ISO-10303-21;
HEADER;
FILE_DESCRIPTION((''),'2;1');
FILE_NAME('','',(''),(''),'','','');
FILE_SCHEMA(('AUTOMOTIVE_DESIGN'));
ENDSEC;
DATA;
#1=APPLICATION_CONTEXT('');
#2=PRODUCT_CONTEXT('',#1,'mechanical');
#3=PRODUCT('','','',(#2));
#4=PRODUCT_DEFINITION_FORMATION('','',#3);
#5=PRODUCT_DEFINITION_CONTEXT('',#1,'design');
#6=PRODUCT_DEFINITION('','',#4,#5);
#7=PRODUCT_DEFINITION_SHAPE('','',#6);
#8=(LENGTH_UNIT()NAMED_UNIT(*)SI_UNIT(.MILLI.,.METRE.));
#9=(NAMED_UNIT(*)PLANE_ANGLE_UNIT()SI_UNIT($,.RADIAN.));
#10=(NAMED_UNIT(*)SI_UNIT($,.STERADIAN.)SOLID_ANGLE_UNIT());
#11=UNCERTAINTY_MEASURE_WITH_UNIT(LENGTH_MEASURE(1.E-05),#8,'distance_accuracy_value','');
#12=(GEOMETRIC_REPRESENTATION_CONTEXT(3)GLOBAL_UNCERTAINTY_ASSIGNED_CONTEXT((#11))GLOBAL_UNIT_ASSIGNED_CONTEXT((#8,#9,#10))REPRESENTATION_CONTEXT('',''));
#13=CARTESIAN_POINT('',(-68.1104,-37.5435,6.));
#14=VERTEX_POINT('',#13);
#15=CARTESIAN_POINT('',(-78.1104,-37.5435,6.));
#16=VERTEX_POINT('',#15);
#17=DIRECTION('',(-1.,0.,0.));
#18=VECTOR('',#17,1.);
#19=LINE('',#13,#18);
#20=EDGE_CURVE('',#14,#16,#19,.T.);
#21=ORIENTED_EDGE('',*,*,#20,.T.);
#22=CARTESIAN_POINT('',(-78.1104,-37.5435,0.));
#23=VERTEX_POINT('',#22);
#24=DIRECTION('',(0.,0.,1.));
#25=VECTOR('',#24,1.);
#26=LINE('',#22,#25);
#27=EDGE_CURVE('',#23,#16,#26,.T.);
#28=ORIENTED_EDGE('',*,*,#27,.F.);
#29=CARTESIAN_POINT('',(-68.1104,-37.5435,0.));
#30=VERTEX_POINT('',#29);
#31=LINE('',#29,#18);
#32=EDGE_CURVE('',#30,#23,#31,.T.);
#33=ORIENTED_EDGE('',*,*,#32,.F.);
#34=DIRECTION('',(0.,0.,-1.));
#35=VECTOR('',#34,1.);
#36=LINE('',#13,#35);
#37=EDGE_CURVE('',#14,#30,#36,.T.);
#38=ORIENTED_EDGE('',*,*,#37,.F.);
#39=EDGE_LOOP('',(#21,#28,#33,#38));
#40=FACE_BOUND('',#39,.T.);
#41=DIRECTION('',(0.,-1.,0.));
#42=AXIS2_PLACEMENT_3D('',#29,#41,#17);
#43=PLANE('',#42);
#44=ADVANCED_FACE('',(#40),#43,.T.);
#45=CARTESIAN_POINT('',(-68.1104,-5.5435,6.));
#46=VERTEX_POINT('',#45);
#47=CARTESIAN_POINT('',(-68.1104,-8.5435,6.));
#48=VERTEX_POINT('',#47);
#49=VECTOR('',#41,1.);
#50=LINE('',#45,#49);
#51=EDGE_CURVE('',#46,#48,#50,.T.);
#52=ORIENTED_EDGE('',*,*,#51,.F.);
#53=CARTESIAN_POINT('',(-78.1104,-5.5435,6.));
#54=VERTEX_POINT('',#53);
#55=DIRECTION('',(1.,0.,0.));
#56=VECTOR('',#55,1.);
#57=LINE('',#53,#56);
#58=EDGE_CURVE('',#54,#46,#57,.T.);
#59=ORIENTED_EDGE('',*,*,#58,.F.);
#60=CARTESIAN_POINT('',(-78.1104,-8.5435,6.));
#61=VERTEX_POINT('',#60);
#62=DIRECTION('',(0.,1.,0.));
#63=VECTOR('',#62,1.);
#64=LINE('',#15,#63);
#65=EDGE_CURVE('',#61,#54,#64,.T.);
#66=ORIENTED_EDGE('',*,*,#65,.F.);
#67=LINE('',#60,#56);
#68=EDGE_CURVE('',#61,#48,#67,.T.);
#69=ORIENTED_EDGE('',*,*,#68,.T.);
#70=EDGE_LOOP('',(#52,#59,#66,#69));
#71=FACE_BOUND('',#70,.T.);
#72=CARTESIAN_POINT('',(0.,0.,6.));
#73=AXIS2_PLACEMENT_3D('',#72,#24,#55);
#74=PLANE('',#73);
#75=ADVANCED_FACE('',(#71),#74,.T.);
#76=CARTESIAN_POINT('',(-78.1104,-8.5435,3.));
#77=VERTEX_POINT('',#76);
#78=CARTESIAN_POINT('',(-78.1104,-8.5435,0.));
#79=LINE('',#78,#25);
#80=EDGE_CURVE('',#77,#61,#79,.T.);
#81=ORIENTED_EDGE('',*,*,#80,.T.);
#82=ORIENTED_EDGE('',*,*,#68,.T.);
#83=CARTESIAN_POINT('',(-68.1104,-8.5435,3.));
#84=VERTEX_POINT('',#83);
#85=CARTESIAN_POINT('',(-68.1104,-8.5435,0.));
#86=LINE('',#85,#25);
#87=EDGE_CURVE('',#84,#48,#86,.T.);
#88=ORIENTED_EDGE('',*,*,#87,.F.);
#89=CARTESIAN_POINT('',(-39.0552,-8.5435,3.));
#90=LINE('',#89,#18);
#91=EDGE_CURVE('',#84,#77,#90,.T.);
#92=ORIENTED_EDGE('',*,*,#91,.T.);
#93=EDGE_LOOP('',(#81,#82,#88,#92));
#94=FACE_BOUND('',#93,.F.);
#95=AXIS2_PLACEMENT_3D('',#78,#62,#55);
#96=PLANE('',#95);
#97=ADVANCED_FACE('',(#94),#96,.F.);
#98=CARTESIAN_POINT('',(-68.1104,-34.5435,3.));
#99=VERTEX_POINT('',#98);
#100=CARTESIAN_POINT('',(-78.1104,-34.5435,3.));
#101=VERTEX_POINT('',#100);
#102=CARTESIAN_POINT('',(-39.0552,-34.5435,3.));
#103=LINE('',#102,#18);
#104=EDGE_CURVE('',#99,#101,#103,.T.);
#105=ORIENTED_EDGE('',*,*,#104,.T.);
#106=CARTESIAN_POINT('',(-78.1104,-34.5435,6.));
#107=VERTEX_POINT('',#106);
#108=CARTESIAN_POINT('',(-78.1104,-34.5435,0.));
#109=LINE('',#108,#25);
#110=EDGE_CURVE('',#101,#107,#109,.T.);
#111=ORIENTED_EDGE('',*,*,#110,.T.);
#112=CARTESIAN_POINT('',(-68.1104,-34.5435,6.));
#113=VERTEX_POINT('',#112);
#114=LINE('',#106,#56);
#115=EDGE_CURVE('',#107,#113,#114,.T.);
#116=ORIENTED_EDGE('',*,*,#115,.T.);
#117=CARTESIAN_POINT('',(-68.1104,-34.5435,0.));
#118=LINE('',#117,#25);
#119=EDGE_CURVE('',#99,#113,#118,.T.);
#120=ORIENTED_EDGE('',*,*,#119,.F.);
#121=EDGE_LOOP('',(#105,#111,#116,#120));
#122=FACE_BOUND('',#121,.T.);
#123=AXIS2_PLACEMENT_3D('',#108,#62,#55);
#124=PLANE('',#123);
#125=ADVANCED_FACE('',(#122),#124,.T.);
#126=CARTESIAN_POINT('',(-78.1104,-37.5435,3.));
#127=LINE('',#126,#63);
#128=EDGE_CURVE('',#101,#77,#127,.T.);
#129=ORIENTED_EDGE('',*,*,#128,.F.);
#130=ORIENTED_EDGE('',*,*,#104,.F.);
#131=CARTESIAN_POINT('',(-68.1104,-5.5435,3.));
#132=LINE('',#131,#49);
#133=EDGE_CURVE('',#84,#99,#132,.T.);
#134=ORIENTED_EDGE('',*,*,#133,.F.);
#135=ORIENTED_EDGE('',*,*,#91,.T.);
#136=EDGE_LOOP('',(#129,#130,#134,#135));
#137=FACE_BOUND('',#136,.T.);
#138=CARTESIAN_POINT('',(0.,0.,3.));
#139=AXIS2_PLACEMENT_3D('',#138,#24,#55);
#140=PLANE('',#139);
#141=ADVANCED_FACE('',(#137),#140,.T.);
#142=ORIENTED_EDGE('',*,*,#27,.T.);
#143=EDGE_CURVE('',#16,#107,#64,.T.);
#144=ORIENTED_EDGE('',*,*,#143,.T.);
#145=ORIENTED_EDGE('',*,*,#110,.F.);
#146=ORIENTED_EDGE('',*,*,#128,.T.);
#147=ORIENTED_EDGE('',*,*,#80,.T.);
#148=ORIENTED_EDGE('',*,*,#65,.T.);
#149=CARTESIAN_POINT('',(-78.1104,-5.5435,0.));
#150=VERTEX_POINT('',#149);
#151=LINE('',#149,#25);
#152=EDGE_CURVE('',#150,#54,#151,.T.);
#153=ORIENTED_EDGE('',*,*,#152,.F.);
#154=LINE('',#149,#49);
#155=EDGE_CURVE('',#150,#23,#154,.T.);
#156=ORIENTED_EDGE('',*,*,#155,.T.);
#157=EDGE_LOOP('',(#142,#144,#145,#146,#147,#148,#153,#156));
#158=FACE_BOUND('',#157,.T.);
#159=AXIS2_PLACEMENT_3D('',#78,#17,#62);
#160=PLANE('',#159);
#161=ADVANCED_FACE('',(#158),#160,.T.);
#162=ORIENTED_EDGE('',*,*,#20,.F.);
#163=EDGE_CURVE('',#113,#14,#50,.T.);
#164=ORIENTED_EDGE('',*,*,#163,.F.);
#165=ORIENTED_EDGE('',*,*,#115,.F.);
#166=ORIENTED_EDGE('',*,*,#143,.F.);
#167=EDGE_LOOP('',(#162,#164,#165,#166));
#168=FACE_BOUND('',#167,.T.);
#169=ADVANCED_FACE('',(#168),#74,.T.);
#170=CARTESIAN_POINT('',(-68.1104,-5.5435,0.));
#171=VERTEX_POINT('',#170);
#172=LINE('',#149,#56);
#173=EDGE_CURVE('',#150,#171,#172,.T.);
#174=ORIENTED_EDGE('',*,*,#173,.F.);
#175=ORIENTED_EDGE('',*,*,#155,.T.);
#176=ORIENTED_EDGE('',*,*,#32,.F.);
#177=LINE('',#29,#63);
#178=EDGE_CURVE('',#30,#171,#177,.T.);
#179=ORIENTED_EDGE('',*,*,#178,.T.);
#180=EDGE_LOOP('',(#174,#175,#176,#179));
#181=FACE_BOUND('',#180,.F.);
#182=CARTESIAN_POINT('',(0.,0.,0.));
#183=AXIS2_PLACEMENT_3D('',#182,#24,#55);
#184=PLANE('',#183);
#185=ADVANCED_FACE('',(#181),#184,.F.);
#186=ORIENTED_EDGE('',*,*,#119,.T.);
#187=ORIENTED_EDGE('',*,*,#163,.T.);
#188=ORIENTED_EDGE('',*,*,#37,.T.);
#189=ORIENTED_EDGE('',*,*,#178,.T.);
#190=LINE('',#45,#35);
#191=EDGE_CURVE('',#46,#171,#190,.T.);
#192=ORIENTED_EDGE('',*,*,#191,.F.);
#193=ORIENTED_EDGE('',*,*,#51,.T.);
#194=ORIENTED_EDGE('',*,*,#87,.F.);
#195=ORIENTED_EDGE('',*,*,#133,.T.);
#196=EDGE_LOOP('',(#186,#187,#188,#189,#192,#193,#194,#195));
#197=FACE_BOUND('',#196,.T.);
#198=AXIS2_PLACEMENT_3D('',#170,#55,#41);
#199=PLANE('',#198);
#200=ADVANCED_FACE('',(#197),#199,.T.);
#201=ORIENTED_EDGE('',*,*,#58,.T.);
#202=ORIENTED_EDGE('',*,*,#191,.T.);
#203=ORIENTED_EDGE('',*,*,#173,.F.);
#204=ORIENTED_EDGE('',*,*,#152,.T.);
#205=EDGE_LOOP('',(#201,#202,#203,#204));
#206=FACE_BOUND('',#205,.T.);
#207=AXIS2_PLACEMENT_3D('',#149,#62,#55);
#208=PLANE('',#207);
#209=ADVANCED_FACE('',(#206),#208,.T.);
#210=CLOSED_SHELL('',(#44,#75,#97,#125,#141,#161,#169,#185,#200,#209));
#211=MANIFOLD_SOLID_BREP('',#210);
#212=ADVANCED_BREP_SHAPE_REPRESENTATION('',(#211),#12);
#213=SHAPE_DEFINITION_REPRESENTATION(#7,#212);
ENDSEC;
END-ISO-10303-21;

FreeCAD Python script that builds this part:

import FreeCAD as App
import Part
import Sketcher
from FreeCAD import Vector

doc = App.newDocument("Part")
body = doc.addObject("PartDesign::Body", "Body")

sketch1 = doc.addObject("Sketcher::SketchObject", "Sketch")
body.addObject(sketch1)
sketch1.AttachmentSupport = (doc.XY_Plane, [""])
sketch1.MapMode = "FlatFace"
sketch1.addGeometry([
    Part.LineSegment(Vector(-68, -6, 0), Vector(-78, -6, 0)),
    Part.LineSegment(Vector(-78, -6, 0), Vector(-78, -38, 0)),
    Part.LineSegment(Vector(-78, -38, 0), Vector(-68, -38, 0)),
    Part.LineSegment(Vector(-68, -38, 0), Vector(-68, -6, 0)),
], False)
sketch1.addConstraint([
    Sketcher.Constraint("Coincident", 0, 2, 1, 1),
    Sketcher.Constraint("Coincident", 1, 2, 2, 1),
    Sketcher.Constraint("Coincident", 2, 2, 3, 1),
    Sketcher.Constraint("Coincident", 3, 2, 0, 1),
    Sketcher.Constraint("Horizontal", 0),
    Sketcher.Constraint("Vertical", 1),
    Sketcher.Constraint("Horizontal", 2),
    Sketcher.Constraint("Vertical", 3),
    Sketcher.Constraint("DistanceX", 0, 2, 0, 1, 10.0),
    Sketcher.Constraint("DistanceY", 1, 2, 1, 1, 32.0),
    Sketcher.Constraint("DistanceX", 0, 2, -1, 1, 78.1104),
    Sketcher.Constraint("DistanceY", 0, 2, -1, 1, 5.5435),
])
pad1 = doc.addObject("PartDesign::Pad", "Pad")
body.addObject(pad1)
pad1.Profile = sketch1
pad1.Length = 3

sketch2 = doc.addObject("Sketcher::SketchObject", "Sketch001")
body.addObject(sketch2)
sketch2.AttachmentSupport = (doc.XY_Plane, [""])
sketch2.MapMode = "FlatFace"
sketch2.addGeometry([
    Part.LineSegment(Vector(-68.1, -5.5, 0), Vector(-78.1, -5.5, 0)),
    Part.LineSegment(Vector(-78.1, -5.5, 0), Vector(-78.1, -8.5, 0)),
    Part.LineSegment(Vector(-78.1, -8.5, 0), Vector(-68.1, -8.5, 0)),
    Part.LineSegment(Vector(-68.1, -8.5, 0), Vector(-68.1, -5.5, 0)),
    Part.LineSegment(Vector(-68.1, -34.5, 0), Vector(-78.1, -34.5, 0)),
    Part.LineSegment(Vector(-78.1, -34.5, 0), Vector(-78.1, -37.5, 0)),
    Part.LineSegment(Vector(-78.1, -37.5, 0), Vector(-68.1, -37.5, 0)),
    Part.LineSegment(Vector(-68.1, -37.5, 0), Vector(-68.1, -34.5, 0)),
], False)
sketch2.addConstraint([
    Sketcher.Constraint("Coincident", 0, 2, 1, 1),
    Sketcher.Constraint("Coincident", 1, 2, 2, 1),
    Sketcher.Constraint("Coincident", 2, 2, 3, 1),
    Sketcher.Constraint("Coincident", 3, 2, 0, 1),
    Sketcher.Constraint("Coincident", 4, 2, 5, 1),
    Sketcher.Constraint("Coincident", 5, 2, 6, 1),
    Sketcher.Constraint("Coincident", 6, 2, 7, 1),
    Sketcher.Constraint("Coincident", 7, 2, 4, 1),
    Sketcher.Constraint("Horizontal", 0),
    Sketcher.Constraint("Vertical", 1),
    Sketcher.Constraint("Horizontal", 2),
    Sketcher.Constraint("Vertical", 3),
    Sketcher.Constraint("Horizontal", 4),
    Sketcher.Constraint("Vertical", 5),
    Sketcher.Constraint("Horizontal", 6),
    Sketcher.Constraint("Vertical", 7),
    Sketcher.Constraint("Vertical", 1, 2, 4, 2),
    Sketcher.Constraint("Vertical", 3, 2, 6, 2),
    Sketcher.Constraint("Equal", 3, 5),
    Sketcher.Constraint("DistanceX", 0, 2, 0, 1, 10.0),
    Sketcher.Constraint("DistanceY", 1, 2, 1, 1, 3.0),
    Sketcher.Constraint("DistanceY", 4, 2, 1, 2, 26.0),
    Sketcher.Constraint("DistanceX", 0, 2, -1, 1, 78.1104),
    Sketcher.Constraint("DistanceY", 0, 2, -1, 1, 5.5435),
])
pad2 = doc.addObject("PartDesign::Pad", "Pad001")
body.addObject(pad2)
pad2.Profile = sketch2
pad2.Length = 6

doc.recompute()
